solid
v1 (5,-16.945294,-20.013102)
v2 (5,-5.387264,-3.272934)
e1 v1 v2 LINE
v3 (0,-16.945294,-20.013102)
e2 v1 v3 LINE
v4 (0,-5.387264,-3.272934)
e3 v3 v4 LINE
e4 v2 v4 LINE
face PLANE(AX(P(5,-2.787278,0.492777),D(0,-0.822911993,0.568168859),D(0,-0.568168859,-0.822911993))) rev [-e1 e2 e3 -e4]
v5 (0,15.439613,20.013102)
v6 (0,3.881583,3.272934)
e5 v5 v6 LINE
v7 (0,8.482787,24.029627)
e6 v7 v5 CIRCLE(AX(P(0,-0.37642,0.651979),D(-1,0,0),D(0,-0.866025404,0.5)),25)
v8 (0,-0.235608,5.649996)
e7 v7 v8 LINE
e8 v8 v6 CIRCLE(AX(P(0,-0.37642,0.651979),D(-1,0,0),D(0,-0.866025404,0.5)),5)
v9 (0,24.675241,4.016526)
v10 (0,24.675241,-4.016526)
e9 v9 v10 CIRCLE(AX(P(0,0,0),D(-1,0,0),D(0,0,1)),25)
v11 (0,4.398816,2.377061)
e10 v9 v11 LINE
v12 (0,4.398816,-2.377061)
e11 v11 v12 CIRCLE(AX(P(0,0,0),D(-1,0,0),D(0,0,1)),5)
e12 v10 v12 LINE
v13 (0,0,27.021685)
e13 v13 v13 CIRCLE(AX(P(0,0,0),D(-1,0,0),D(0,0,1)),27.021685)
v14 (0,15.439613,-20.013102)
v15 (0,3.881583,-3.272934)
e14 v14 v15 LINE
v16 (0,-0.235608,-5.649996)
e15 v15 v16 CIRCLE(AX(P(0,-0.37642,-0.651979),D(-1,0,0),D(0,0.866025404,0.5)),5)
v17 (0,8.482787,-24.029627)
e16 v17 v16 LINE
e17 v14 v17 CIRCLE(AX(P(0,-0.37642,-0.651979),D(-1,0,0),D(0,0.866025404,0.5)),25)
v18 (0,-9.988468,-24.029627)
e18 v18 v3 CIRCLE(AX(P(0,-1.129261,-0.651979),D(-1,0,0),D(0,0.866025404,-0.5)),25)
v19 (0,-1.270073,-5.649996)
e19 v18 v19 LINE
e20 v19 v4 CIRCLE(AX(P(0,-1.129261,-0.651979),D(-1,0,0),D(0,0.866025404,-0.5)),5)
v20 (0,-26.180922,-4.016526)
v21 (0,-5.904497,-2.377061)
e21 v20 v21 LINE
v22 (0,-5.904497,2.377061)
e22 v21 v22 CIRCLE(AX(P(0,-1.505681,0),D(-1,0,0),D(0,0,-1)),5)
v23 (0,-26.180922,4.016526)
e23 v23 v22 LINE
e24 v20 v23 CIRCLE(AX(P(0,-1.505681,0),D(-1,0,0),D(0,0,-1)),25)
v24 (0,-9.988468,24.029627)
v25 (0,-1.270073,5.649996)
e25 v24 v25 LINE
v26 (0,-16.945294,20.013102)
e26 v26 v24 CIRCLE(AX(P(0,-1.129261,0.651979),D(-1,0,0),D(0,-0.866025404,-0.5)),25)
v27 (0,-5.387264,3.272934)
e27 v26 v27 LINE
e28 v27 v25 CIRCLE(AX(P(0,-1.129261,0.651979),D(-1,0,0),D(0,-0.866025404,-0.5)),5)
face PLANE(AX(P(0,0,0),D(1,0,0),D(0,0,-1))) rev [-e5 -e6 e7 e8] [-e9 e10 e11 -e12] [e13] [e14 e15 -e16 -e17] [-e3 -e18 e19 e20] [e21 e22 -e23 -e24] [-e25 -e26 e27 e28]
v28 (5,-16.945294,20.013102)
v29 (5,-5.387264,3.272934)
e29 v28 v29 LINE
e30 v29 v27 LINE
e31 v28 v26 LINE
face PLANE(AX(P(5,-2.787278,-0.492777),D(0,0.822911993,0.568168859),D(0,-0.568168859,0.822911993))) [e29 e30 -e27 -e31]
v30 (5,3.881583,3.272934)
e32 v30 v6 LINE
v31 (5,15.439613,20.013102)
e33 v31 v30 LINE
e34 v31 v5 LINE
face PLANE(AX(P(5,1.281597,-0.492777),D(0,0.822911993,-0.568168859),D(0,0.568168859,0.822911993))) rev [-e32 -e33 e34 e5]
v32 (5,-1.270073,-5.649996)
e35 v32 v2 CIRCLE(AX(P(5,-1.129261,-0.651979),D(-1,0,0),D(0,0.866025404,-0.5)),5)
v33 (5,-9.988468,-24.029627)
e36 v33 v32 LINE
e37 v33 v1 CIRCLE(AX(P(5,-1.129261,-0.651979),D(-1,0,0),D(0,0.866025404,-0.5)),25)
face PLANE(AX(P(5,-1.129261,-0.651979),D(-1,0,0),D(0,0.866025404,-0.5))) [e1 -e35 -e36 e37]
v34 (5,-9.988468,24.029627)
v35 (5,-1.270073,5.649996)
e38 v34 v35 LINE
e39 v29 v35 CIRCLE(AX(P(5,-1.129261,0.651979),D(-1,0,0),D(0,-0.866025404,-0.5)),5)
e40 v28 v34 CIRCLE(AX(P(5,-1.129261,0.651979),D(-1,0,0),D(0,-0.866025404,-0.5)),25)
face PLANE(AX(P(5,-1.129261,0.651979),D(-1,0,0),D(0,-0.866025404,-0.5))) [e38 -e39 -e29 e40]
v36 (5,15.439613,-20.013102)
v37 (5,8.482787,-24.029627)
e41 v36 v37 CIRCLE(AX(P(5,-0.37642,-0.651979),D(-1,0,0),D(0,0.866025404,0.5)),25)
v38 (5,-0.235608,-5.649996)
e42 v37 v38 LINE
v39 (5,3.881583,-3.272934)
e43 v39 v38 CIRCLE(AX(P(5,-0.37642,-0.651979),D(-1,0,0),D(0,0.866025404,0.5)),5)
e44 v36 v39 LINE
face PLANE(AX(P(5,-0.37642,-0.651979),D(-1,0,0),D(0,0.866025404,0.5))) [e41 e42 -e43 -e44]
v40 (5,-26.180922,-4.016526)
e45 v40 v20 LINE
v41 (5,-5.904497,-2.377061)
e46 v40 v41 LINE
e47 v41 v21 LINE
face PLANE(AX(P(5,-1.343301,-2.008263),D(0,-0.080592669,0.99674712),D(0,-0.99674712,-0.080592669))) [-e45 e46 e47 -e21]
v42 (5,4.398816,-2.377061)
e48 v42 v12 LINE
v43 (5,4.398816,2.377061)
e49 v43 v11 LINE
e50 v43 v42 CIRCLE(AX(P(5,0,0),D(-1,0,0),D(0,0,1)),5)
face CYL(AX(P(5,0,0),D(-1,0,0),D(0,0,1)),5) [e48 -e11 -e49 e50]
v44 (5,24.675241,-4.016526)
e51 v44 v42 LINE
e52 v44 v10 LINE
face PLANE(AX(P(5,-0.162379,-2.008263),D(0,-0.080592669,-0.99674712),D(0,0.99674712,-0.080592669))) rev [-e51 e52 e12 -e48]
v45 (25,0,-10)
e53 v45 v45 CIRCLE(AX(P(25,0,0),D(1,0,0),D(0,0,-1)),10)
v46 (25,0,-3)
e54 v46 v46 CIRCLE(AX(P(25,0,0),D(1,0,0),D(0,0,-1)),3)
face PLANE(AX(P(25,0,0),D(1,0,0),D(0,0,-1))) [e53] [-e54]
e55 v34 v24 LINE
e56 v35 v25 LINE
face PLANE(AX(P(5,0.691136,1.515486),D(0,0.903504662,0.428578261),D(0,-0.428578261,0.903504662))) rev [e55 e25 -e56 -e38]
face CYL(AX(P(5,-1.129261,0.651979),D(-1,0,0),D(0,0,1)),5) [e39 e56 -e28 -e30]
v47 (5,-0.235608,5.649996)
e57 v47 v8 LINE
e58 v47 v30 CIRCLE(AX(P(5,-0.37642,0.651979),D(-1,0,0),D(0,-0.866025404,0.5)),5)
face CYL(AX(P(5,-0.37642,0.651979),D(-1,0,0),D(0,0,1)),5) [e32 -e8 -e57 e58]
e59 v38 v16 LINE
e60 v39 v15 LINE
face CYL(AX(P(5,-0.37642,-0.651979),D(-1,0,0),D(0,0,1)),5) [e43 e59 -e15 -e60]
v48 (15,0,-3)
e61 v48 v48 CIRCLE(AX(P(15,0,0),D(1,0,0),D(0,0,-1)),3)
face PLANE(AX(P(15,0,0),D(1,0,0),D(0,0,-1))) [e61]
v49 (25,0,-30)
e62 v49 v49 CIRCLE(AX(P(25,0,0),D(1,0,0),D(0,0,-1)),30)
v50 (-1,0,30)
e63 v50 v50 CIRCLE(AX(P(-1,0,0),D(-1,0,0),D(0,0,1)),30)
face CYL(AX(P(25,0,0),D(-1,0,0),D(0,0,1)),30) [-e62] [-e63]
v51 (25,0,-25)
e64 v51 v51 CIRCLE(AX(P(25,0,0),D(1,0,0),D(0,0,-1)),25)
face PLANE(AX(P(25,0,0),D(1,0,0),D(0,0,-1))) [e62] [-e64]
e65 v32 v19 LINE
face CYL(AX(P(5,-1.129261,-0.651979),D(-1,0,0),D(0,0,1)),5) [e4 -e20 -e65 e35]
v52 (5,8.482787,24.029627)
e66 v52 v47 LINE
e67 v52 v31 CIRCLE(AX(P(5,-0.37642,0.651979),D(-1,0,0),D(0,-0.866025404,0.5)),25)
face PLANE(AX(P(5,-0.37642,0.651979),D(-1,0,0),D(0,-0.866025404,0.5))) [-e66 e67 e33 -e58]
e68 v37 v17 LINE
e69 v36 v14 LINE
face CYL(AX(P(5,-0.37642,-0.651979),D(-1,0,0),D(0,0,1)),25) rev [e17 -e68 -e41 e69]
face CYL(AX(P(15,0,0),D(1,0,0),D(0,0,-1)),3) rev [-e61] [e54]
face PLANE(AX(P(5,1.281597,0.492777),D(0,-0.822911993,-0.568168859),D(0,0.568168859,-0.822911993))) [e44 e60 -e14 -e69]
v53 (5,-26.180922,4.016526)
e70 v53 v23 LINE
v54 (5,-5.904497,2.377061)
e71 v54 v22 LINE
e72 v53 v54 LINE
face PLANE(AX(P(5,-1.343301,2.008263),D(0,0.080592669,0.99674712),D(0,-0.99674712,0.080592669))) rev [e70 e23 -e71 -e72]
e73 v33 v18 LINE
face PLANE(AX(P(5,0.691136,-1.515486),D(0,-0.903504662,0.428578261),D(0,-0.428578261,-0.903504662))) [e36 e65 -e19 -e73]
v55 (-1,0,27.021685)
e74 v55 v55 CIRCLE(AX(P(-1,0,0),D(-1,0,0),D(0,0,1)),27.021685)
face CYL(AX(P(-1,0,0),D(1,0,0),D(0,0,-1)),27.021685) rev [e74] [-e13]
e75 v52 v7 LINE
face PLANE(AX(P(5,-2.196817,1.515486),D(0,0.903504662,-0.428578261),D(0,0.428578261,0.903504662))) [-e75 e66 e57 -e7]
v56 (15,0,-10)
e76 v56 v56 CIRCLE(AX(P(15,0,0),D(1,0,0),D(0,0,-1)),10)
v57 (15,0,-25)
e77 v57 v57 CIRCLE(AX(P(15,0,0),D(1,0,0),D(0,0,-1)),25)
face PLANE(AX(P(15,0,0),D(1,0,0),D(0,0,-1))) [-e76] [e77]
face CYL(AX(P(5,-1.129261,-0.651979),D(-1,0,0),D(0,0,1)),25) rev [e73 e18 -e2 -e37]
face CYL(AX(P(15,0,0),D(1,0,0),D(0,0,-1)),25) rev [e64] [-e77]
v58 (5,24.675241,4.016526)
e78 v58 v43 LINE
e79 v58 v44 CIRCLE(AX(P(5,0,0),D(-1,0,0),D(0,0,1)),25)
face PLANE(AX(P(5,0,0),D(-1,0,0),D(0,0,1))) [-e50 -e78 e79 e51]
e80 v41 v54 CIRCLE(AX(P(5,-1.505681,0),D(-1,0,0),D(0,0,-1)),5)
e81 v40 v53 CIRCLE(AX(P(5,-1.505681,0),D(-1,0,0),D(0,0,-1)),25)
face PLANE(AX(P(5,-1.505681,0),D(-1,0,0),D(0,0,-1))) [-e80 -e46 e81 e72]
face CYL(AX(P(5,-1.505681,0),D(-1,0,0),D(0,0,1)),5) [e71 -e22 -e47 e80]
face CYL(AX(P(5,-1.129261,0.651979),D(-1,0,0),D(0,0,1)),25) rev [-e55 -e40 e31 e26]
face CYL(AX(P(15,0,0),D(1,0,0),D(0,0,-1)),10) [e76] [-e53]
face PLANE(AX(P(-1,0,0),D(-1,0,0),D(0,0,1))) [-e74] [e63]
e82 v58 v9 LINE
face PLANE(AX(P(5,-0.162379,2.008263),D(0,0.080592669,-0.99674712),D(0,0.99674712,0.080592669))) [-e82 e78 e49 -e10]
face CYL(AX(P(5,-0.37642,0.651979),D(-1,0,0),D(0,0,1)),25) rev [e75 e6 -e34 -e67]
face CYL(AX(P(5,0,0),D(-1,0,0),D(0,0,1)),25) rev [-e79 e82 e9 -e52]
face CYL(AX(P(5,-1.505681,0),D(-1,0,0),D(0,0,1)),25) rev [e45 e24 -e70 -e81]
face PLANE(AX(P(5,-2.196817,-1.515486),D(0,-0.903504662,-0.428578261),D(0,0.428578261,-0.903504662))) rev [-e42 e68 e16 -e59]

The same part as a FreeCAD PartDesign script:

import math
import FreeCAD as App
import Part
import Sketcher
from FreeCAD import Vector

doc = App.newDocument("Part")
body = doc.addObject("PartDesign::Body", "Body")

sketch1 = body.newObject("Sketcher::SketchObject", "Sketch")
sketch1.AttachmentSupport = (doc.getObject("YZ_Plane"), [""])
sketch1.MapMode = "FlatFace"
sketch1.addGeometry(Part.Circle(Vector(0, 0, 0), Vector(0, 0, 1), 30), False)
sketch1.addConstraint(Sketcher.Constraint("Coincident", 0, 3, -1, 1))
sketch1.addConstraint(Sketcher.Constraint("Diameter", 0, 60.0))
pad1 = body.newObject("PartDesign::Pad", "Pad")
pad1.Profile = sketch1
pad1.Length = 25

sketch2 = body.newObject("Sketcher::SketchObject", "Sketch001")
sketch2.AttachmentSupport = (doc.getObject("YZ_Plane"), [""])
sketch2.MapMode = "FlatFace"
sketch2.addGeometry(Part.ArcOfCircle(Part.Circle(Vector(0, 0, 0), Vector(0, 0, 1), 5), math.radians(0), math.radians(28)), False)
sketch2.addGeometry(Part.LineSegment(Vector(4.4, 2.4, 0), Vector(24.7, 4, 0)), False)
sketch2.addGeometry(Part.ArcOfCircle(Part.Circle(Vector(0, 0, 0), Vector(0, 0, 1), 25), math.radians(0), math.radians(9.25)), False)
sketch2.addGeometry(Part.ArcOfCircle(Part.Circle(Vector(0, 0, 0), Vector(0, 0, 1), 25), math.radians(-9.25), math.radians(0)), False)
sketch2.addGeometry(Part.LineSegment(Vector(24.7, -4, 0), Vector(4.4, -2.4, 0)), False)
sketch2.addGeometry(Part.ArcOfCircle(Part.Circle(Vector(0, 0, 0), Vector(0, 0, 1), 5), math.radians(-28), math.radians(0)), False)
sketch2.addConstraint(Sketcher.Constraint("Coincident", 0, 2, 1, 1))
sketch2.addConstraint(Sketcher.Constraint("Coincident", 1, 2, 2, 2))
sketch2.addConstraint(Sketcher.Constraint("Tangent", 2, 1, 3, 2))
sketch2.addConstraint(Sketcher.Constraint("Coincident", 3, 1, 4, 1))
sketch2.addConstraint(Sketcher.Constraint("Coincident", 4, 2, 5, 1))
sketch2.addConstraint(Sketcher.Constraint("Tangent", 5, 2, 0, 1))
sketch2.addConstraint(Sketcher.Constraint("Coincident", 0, 3, -1, 1))
sketch2.addConstraint(Sketcher.Constraint("Coincident", 2, 3, -1, 1))
sketch2.addConstraint(Sketcher.Constraint("Equal", 2, 3))
sketch2.addConstraint(Sketcher.Constraint("Equal", 0, 5))
sketch2.addConstraint(Sketcher.Constraint("PointOnObject", 2, 1, -1))
sketch2.addConstraint(Sketcher.Constraint("PointOnObject", 5, 2, -1))
sketch2.addConstraint(Sketcher.Constraint("Vertical", 1, 2, 3, 1))
sketch2.addConstraint(Sketcher.Constraint("Vertical", 0, 2, 4, 2))
sketch2.addConstraint(Sketcher.Constraint("Radius", 0, 5.0))
sketch2.addConstraint(Sketcher.Constraint("Radius", 2, 25.0))
sketch2.addConstraint(Sketcher.Constraint("DistanceY", -1, 1, 0, 2, 2.377061))
sketch2.addConstraint(Sketcher.Constraint("DistanceX", -1, 1, 1, 2, 24.675241))
pocket1 = body.newObject("PartDesign::Pocket", "Pocket")
pocket1.Profile = sketch2
pocket1.Length = 5
pocket1.Reversed = True
doc.recompute()

datumline = body.newObject("PartDesign::Line", "DatumLine")
datumline.Placement = App.Placement(Vector(0, -0.75284, 0), App.Rotation(Vector(0, 0, 1), Vector(1, 0, 0)))
polarpattern = body.newObject("PartDesign::PolarPattern", "PolarPattern")
polarpattern.Originals = [pocket1]
polarpattern.Axis = (datumline, [""])
polarpattern.Angle = 360
polarpattern.Occurrences = 6
body.Tip = polarpattern

sketch3 = body.newObject("Sketcher::SketchObject", "Sketch002")
sketch3.AttachmentSupport = (doc.getObject("YZ_Plane"), [""])
sketch3.MapMode = "FlatFace"
sketch3.AttachmentOffset = App.Placement(Vector(0, 0, 15), App.Rotation())
sketch3.addGeometry(Part.Circle(Vector(0, 0, 0), Vector(0, 0, 1), 25), False)
sketch3.addGeometry(Part.Circle(Vector(0, 0, 0), Vector(0, 0, 1), 10), False)
sketch3.addGeometry(Part.Circle(Vector(0, 0, 0), Vector(0, 0, 1), 3), False)
sketch3.addConstraint(Sketcher.Constraint("Coincident", 0, 3, -1, 1))
sketch3.addConstraint(Sketcher.Constraint("Coincident", 1, 3, -1, 1))
sketch3.addConstraint(Sketcher.Constraint("Coincident", 2, 3, -1, 1))
sketch3.addConstraint(Sketcher.Constraint("Diameter", 0, 50.0))
sketch3.addConstraint(Sketcher.Constraint("Diameter", 1, 20.0))
sketch3.addConstraint(Sketcher.Constraint("Diameter", 2, 6.0))
pocket2 = body.newObject("PartDesign::Pocket", "Pocket001")
pocket2.Profile = sketch3
pocket2.Length = 10
pocket2.Reversed = True

sketch4 = body.newObject("Sketcher::SketchObject", "Sketch003")
sketch4.AttachmentSupport = (doc.getObject("YZ_Plane"), [""])
sketch4.MapMode = "FlatFace"
sketch4.AttachmentOffset = App.Placement(Vector(0, 0, -1), App.Rotation())
sketch4.addGeometry(Part.Circle(Vector(0, 0, 0), Vector(0, 0, 1), 30), False)
sketch4.addGeometry(Part.Circle(Vector(0, 0, 0), Vector(0, 0, 1), 27), False)
sketch4.addConstraint(Sketcher.Constraint("Coincident", 0, 3, -1, 1))
sketch4.addConstraint(Sketcher.Constraint("Coincident", 1, 3, -1, 1))
sketch4.addConstraint(Sketcher.Constraint("Diameter", 0, 60.0))
sketch4.addConstraint(Sketcher.Constraint("Diameter", 1, 54.04337))
pad2 = body.newObject("PartDesign::Pad", "Pad001")
pad2.Profile = sketch4
pad2.Length = 1

doc.recompute()
